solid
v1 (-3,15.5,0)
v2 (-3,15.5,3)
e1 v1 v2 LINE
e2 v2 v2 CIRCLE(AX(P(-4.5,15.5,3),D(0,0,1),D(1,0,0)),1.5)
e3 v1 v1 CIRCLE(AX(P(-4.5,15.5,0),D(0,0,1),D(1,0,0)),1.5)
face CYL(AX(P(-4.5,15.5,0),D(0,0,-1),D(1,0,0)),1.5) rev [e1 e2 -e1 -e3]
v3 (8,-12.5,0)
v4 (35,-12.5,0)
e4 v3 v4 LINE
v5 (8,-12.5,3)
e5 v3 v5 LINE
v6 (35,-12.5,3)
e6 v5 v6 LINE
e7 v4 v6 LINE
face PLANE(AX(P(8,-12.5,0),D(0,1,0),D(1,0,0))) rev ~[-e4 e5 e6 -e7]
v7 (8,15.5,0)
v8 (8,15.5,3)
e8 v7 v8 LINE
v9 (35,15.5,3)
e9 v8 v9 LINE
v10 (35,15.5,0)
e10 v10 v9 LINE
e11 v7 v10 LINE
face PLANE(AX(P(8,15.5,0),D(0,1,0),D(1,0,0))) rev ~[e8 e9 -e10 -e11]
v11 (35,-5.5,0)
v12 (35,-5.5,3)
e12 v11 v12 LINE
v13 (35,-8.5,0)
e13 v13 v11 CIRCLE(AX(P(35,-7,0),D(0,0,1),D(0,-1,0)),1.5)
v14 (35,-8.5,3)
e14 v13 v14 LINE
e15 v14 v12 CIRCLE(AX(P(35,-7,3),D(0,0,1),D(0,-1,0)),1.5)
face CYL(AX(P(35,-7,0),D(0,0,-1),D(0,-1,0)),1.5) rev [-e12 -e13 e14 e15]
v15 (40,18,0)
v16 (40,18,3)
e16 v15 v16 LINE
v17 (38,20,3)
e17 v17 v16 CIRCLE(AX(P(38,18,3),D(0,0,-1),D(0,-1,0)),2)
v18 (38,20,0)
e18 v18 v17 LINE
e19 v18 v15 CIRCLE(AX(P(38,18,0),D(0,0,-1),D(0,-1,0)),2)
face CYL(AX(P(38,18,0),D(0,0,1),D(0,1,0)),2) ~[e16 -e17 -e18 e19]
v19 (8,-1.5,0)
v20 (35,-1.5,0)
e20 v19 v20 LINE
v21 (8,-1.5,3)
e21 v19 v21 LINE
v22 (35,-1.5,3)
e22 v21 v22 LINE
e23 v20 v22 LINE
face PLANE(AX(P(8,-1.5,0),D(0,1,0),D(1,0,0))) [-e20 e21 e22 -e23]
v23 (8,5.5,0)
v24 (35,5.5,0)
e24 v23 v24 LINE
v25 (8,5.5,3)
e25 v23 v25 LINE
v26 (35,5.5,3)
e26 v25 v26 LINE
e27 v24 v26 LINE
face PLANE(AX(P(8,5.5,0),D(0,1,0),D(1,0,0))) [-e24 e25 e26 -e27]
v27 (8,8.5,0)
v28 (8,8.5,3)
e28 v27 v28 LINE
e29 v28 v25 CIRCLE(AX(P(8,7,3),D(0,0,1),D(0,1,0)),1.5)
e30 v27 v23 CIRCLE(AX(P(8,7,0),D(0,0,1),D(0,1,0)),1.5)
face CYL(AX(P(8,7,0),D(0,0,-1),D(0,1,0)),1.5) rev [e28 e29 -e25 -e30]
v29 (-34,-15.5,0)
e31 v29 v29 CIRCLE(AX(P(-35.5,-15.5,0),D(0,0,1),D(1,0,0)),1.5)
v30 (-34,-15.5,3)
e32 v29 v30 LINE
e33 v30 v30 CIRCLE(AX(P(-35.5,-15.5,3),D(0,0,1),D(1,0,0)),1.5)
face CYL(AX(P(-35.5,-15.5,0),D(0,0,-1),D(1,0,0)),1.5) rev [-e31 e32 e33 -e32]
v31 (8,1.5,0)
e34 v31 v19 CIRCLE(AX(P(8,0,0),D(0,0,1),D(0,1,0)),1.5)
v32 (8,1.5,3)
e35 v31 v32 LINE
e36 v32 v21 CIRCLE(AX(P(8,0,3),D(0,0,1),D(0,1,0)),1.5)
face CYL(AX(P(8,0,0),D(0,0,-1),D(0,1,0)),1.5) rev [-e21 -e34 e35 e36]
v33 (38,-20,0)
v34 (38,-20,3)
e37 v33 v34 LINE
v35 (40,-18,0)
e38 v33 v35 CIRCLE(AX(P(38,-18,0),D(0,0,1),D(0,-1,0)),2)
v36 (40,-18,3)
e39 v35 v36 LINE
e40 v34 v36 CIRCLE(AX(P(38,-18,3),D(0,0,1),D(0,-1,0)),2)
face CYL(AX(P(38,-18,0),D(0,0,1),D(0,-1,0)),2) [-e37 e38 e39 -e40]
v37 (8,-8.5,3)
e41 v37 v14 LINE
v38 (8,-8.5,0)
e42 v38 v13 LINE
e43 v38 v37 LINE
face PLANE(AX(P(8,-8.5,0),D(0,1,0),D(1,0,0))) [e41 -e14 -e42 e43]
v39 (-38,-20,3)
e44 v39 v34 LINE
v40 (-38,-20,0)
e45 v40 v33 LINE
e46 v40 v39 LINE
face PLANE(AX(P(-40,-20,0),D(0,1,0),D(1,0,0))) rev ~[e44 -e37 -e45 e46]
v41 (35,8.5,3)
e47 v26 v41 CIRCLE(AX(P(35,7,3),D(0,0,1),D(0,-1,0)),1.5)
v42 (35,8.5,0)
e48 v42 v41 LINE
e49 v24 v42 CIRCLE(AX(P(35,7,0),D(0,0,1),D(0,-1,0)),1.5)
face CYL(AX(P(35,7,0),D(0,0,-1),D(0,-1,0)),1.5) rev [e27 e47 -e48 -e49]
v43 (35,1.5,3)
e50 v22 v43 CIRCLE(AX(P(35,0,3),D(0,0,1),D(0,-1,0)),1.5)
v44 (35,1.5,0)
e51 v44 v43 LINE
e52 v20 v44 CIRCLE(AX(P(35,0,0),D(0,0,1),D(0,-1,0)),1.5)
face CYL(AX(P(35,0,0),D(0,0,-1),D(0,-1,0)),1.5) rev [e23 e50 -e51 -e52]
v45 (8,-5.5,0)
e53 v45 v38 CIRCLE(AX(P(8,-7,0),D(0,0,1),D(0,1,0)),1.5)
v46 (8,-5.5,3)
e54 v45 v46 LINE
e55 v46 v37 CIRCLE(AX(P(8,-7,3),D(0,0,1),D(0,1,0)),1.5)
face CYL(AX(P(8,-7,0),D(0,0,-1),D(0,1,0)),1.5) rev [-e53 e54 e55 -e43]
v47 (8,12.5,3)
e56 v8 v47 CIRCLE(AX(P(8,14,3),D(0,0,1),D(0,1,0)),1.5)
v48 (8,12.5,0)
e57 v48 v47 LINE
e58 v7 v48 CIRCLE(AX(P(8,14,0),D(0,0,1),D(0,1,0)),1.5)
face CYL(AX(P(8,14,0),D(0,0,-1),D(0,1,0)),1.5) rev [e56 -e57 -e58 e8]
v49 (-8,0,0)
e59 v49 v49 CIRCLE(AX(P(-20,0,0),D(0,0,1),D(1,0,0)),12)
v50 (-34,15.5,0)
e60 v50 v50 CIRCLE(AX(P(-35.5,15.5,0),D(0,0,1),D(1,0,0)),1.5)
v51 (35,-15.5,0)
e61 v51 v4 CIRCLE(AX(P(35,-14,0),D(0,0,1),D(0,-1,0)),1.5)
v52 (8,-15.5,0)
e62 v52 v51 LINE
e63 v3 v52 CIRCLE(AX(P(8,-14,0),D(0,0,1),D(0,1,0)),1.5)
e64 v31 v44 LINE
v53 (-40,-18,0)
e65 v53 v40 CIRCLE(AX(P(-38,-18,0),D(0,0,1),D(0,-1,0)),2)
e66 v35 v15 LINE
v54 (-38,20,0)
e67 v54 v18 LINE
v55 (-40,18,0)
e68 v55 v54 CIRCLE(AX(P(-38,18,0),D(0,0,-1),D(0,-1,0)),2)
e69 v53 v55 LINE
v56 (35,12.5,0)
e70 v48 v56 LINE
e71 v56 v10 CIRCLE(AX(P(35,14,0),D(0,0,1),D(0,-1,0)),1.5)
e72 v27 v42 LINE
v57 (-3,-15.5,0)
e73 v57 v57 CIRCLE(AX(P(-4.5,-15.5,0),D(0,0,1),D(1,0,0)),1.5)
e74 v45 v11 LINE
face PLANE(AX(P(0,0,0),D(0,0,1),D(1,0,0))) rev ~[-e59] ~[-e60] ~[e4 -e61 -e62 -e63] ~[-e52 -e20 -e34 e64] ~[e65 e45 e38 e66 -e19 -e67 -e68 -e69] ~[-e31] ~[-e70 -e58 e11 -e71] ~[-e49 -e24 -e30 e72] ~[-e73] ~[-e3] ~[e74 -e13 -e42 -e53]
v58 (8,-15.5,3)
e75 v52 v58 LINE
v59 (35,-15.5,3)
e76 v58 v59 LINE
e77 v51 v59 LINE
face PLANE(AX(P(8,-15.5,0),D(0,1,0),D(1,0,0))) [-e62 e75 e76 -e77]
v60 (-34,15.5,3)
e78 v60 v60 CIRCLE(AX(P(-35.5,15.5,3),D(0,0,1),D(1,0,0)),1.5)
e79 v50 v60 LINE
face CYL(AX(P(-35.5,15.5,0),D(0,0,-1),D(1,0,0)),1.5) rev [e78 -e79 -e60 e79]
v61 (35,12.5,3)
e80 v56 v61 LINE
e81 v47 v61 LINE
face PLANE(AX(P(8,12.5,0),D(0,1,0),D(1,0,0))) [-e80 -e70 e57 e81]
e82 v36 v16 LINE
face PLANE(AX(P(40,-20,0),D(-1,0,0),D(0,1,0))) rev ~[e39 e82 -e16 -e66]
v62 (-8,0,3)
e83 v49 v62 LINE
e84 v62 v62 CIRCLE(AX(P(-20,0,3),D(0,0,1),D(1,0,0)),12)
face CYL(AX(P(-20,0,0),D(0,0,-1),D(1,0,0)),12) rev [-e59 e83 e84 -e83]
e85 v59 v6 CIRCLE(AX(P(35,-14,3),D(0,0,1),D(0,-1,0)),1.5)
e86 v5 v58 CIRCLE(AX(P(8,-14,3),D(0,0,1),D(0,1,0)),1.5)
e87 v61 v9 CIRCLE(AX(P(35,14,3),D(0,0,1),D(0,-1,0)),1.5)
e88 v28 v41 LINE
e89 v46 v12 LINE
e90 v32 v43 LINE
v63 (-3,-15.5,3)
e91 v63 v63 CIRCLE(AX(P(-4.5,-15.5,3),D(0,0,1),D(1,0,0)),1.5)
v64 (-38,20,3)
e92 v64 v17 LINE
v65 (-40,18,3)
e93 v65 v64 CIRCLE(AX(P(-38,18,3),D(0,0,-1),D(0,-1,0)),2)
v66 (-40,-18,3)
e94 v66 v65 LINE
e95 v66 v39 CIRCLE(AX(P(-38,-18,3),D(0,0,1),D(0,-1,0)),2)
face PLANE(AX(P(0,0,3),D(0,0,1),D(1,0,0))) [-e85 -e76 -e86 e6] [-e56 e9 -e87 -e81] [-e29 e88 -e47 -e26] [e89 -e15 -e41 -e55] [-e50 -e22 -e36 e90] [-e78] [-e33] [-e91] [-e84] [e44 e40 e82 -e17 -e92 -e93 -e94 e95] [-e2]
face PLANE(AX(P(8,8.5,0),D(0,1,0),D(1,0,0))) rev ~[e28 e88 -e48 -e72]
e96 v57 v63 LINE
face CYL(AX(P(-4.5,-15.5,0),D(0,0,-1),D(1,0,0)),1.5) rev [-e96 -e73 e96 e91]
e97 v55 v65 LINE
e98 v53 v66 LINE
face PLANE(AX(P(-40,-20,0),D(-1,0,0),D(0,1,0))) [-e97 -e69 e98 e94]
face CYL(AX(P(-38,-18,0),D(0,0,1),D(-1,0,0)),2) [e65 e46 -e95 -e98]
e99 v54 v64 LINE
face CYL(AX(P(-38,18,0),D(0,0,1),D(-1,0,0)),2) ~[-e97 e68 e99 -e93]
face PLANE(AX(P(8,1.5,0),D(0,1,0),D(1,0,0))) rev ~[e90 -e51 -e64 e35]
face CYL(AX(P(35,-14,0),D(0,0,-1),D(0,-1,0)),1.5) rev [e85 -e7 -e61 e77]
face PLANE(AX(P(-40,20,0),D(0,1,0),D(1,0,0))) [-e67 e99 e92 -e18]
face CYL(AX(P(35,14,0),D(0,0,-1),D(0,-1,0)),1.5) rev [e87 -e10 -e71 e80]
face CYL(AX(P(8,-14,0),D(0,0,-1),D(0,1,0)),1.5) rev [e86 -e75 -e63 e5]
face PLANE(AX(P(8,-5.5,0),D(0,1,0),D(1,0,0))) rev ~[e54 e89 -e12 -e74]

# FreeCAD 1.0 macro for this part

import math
import FreeCAD as App
import Part
import Sketcher

V = App.Vector
Q = App.Units.Quantity


def edges_at(feature, points):
    """Names of the edges that pass closest to the given points."""
    edges = feature.Shape.Edges
    near = lambda p: min(range(len(edges)), key=lambda i: edges[i].distToShape(Part.Vertex(*p))[0])
    return sorted({f"Edge{near(p) + 1}" for p in points})

doc = App.newDocument("Part")
body = doc.addObject("PartDesign::Body", "Body")

sketch1 = body.newObject("Sketcher::SketchObject", "Sketch")
sketch1.AttachmentSupport = (doc.getObject("XY_Plane"), [""])
sketch1.MapMode = "FlatFace"
sketch1.addGeometry([
    Part.LineSegment(V(-40, 20, 0), V(-40, -20, 0)),
    Part.LineSegment(V(-40, -20, 0), V(40, -20, 0)),
    Part.LineSegment(V(40, -20, 0), V(40, 20, 0)),
    Part.LineSegment(V(40, 20, 0), V(-40, 20, 0)),
    Part.Circle(V(-35.5, -15.5, 0), V(0, 0, 1), 1.5),
    Part.Circle(V(-4.5, -15.5, 0), V(0, 0, 1), 1.5),
    Part.ArcOfCircle(Part.Circle(V(8, -14, 0), V(0, 0, 1), 1.5), math.radians(90), math.radians(270)),
    Part.LineSegment(V(8, -12.5, 0), V(35, -12.5, 0)),
    Part.ArcOfCircle(Part.Circle(V(35, -14, 0), V(0, 0, 1), 1.5), math.radians(-90), math.radians(90)),
    Part.LineSegment(V(35, -15.5, 0), V(8, -15.5, 0)),
    Part.ArcOfCircle(Part.Circle(V(8, -7, 0), V(0, 0, 1), 1.5), math.radians(90), math.radians(270)),
    Part.LineSegment(V(8, -5.5, 0), V(35, -5.5, 0)),
    Part.ArcOfCircle(Part.Circle(V(35, -7, 0), V(0, 0, 1), 1.5), math.radians(-90), math.radians(90)),
    Part.LineSegment(V(35, -8.5, 0), V(8, -8.5, 0)),
    Part.Circle(V(-20, 0, 0), V(0, 0, 1), 12),
    Part.Circle(V(-35.5, 15.5, 0), V(0, 0, 1), 1.5),
    Part.Circle(V(-4.5, 15.5, 0), V(0, 0, 1), 1.5),
    Part.ArcOfCircle(Part.Circle(V(8, 0, 0), V(0, 0, 1), 1.5), math.radians(90), math.radians(270)),
    Part.LineSegment(V(8, 1.5, 0), V(35, 1.5, 0)),
    Part.ArcOfCircle(Part.Circle(V(35, 0, 0), V(0, 0, 1), 1.5), math.radians(-90), math.radians(90)),
    Part.LineSegment(V(35, -1.5, 0), V(8, -1.5, 0)),
    Part.ArcOfCircle(Part.Circle(V(8, 7, 0), V(0, 0, 1), 1.5), math.radians(90), math.radians(270)),
    Part.LineSegment(V(8, 8.5, 0), V(35, 8.5, 0)),
    Part.ArcOfCircle(Part.Circle(V(35, 7, 0), V(0, 0, 1), 1.5), math.radians(-90), math.radians(90)),
    Part.LineSegment(V(35, 5.5, 0), V(8, 5.5, 0)),
    Part.ArcOfCircle(Part.Circle(V(8, 14, 0), V(0, 0, 1), 1.5), math.radians(90), math.radians(270)),
    Part.LineSegment(V(8, 15.5, 0), V(35, 15.5, 0)),
    Part.ArcOfCircle(Part.Circle(V(35, 14, 0), V(0, 0, 1), 1.5), math.radians(-90), math.radians(90)),
    Part.LineSegment(V(35, 12.5, 0), V(8, 12.5, 0)),
], False)
sketch1.addConstraint([
    Sketcher.Constraint("Coincident", 0, 2, 1, 1),
    Sketcher.Constraint("Coincident", 1, 2, 2, 1),
    Sketcher.Constraint("Coincident", 2, 2, 3, 1),
    Sketcher.Constraint("Coincident", 3, 2, 0, 1),
    Sketcher.Constraint("Tangent", 6, 1, 7, 1),
    Sketcher.Constraint("Tangent", 7, 2, 8, 2),
    Sketcher.Constraint("Tangent", 8, 1, 9, 1),
    Sketcher.Constraint("Tangent", 9, 2, 6, 2),
    Sketcher.Constraint("Tangent", 10, 1, 11, 1),
    Sketcher.Constraint("Tangent", 11, 2, 12, 2),
    Sketcher.Constraint("Tangent", 12, 1, 13, 1),
    Sketcher.Constraint("Tangent", 13, 2, 10, 2),
    Sketcher.Constraint("Tangent", 17, 1, 18, 1),
    Sketcher.Constraint("Tangent", 18, 2, 19, 2),
    Sketcher.Constraint("Tangent", 19, 1, 20, 1),
    Sketcher.Constraint("Tangent", 20, 2, 17, 2),
    Sketcher.Constraint("Tangent", 21, 1, 22, 1),
    Sketcher.Constraint("Tangent", 22, 2, 23, 2),
    Sketcher.Constraint("Tangent", 23, 1, 24, 1),
    Sketcher.Constraint("Tangent", 24, 2, 21, 2),
    Sketcher.Constraint("Tangent", 25, 1, 26, 1),
    Sketcher.Constraint("Tangent", 26, 2, 27, 2),
    Sketcher.Constraint("Tangent", 27, 1, 28, 1),
    Sketcher.Constraint("Tangent", 28, 2, 25, 2),
    Sketcher.Constraint("Vertical", 0),
    Sketcher.Constraint("Horizontal", 1),
    Sketcher.Constraint("Vertical", 2),
    Sketcher.Constraint("Horizontal", 3),
    Sketcher.Constraint("Horizontal", 7),
    Sketcher.Constraint("Horizontal", 9),
    Sketcher.Constraint("Horizontal", 11),
    Sketcher.Constraint("Horizontal", 13),
    Sketcher.Constraint("Horizontal", 18),
    Sketcher.Constraint("Horizontal", 20),
    Sketcher.Constraint("Horizontal", 22),
    Sketcher.Constraint("Horizontal", 24),
    Sketcher.Constraint("Horizontal", 26),
    Sketcher.Constraint("Horizontal", 28),
    Sketcher.Constraint("Equal", 4, 5),
    Sketcher.Constraint("Equal", 5, 6),
    Sketcher.Constraint("Equal", 8, 10),
    Sketcher.Constraint("Equal", 12, 15),
    Sketcher.Constraint("Equal", 15, 16),
    Sketcher.Constraint("Equal", 16, 17),
    Sketcher.Constraint("Equal", 19, 21),
    Sketcher.Constraint("Equal", 23, 25),
    Sketcher.Constraint("Symmetric", 0, 2, 2, 2, -1, 1),
    Sketcher.Constraint("Symmetric", 4, 3, 15, 3, -1),
    Sketcher.Constraint("Symmetric", 5, 3, 16, 3, -1),
    Sketcher.Constraint("Symmetric", 10, 3, 21, 3, -1),
    Sketcher.Constraint("Symmetric", 6, 3, 25, 3, -1),
    Sketcher.Constraint("PointOnObject", 14, 3, -1),
    Sketcher.Constraint("PointOnObject", 17, 3, -1),
    Sketcher.Constraint("Horizontal", 4, 3, 5, 3),
    Sketcher.Constraint("Horizontal", 5, 3, 8, 1),
    Sketcher.Constraint("Vertical", 6, 3, 10, 3),
    Sketcher.Constraint("Vertical", 8, 3, 12, 3),
    Sketcher.Constraint("Vertical", 10, 3, 17, 3),
    Sketcher.Constraint("Vertical", 12, 3, 19, 3),
    Sketcher.Constraint("Vertical", 19, 3, 23, 3),
    Sketcher.Constraint("Vertical", 23, 3, 27, 3),
    Sketcher.Constraint("Diameter", 4, Q("3 mm")),
    Sketcher.Constraint("Diameter", 14, Q("24 mm")),
    Sketcher.Constraint("DistanceX", 1, 1, 1, 2, Q("80 mm")),
    Sketcher.Constraint("DistanceX", 7, 1, 7, 2, Q("27 mm")),
    Sketcher.Constraint("DistanceY", 0, 2, 0, 1, Q("40 mm")),
    Sketcher.Constraint("DistanceX", -1, 1, 6, 3, Q("8 mm")),
    Sketcher.Constraint("DistanceY", 6, 3, -1, 1, Q("14 mm")),
    Sketcher.Constraint("DistanceY", 10, 3, -1, 1, Q("7 mm")),
    Sketcher.Constraint("DistanceX", 14, 3, -1, 1, Q("20 mm")),
    Sketcher.Constraint("DistanceX", 4, 3, 5, 3, Q("31 mm")),
    Sketcher.Constraint("DistanceX", 4, 3, -1, 1, Q("35.5 mm")),
])
pad1 = body.newObject("PartDesign::Pad", "Pad")
pad1.Profile = sketch1
pad1.Length = 3
doc.recompute()

fillet = body.newObject("PartDesign::Fillet", "Fillet")
fillet.Base = (pad1, edges_at(pad1, [
    (-40, 20, 1.5),
    (-40, -20, 1.5),
    (40, -20, 1.5),
    (40, 20, 1.5),
]))
fillet.Radius = 2

doc.recompute()
